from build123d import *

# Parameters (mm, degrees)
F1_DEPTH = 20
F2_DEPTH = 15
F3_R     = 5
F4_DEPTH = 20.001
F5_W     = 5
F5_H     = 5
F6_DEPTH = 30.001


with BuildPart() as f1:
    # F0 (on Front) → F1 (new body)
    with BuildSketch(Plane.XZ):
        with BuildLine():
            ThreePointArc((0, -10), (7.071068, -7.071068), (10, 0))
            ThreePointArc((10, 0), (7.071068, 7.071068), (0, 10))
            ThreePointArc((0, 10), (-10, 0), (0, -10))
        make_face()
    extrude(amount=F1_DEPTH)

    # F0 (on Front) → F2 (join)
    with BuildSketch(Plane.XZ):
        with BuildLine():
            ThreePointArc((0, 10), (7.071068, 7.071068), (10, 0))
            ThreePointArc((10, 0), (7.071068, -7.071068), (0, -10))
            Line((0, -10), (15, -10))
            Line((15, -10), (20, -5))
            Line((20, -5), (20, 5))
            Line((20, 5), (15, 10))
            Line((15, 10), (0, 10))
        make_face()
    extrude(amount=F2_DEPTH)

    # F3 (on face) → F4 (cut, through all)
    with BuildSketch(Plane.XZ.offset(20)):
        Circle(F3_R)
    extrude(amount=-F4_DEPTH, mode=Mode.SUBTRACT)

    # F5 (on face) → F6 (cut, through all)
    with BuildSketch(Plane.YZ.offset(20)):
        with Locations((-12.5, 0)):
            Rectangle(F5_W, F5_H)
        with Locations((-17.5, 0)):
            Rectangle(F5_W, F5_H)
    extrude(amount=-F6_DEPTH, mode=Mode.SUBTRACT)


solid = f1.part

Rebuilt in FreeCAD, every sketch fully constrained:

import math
import FreeCAD as App
import Part
import Sketcher

V = App.Vector

doc = App.newDocument("Part")
body = doc.addObject("PartDesign::Body", "Body")

sketch1 = doc.addObject("Sketcher::SketchObject", "Sketch")
body.addObject(sketch1)
sketch1.AttachmentSupport = (doc.XZ_Plane, [""])
sketch1.MapMode = "FlatFace"
sketch1.addGeometry([
    Part.ArcOfCircle(Part.Circle(V(0.000001, -0.000001, 0), V(0, 0, 1), 9.999999), math.radians(-90.000004), math.radians(0.000004)),
    Part.ArcOfCircle(Part.Circle(V(0.000001, 0.000001, 0), V(0, 0, 1), 9.999999), math.radians(-0.000004), math.radians(90.000004)),
    Part.ArcOfCircle(Part.Circle(V(0, 0, 0), V(0, 0, 1), 10), math.radians(90), math.radians(270)),
], False)
sketch1.addConstraint([
    Sketcher.Constraint("Tangent", 0, 2, 1, 1),
    Sketcher.Constraint("Tangent", 1, 2, 2, 1),
    Sketcher.Constraint("Tangent", 2, 2, 0, 1),
    Sketcher.Constraint("Coincident", 0, 3, -1, 1),
    Sketcher.Constraint("PointOnObject", 0, 2, -1),
    Sketcher.Constraint("PointOnObject", 1, 2, -2),
    Sketcher.Constraint("PointOnObject", 2, 2, -2),
    Sketcher.Constraint("Radius", 0, 9.999999),
])
pad1 = doc.addObject("PartDesign::Pad", "Pad")
body.addObject(pad1)
pad1.Profile = sketch1
pad1.Length = 20

sketch2 = doc.addObject("Sketcher::SketchObject", "Sketch001")
body.addObject(sketch2)
sketch2.AttachmentSupport = (doc.XZ_Plane, [""])
sketch2.MapMode = "FlatFace"
sketch2.addGeometry([
    Part.ArcOfCircle(Part.Circle(V(0.000001, 0.000001, 0), V(0, 0, 1), 9.999999), math.radians(-0.000004), math.radians(90.000004)),
    Part.ArcOfCircle(Part.Circle(V(0.000001, -0.000001, 0), V(0, 0, 1), 9.999999), math.radians(-90.000004), math.radians(0.000004)),
    Part.LineSegment(V(0, -10, 0), V(15, -10, 0)),
    Part.LineSegment(V(15, -10, 0), V(20, -5, 0)),
    Part.LineSegment(V(20, -5, 0), V(20, 5, 0)),
    Part.LineSegment(V(20, 5, 0), V(15, 10, 0)),
    Part.LineSegment(V(15, 10, 0), V(0, 10, 0)),
], False)
sketch2.addConstraint([
    Sketcher.Constraint("Tangent", 0, 1, 1, 2),
    Sketcher.Constraint("Tangent", 1, 1, 2, 1),
    Sketcher.Constraint("Coincident", 2, 2, 3, 1),
    Sketcher.Constraint("Coincident", 3, 2, 4, 1),
    Sketcher.Constraint("Coincident", 4, 2, 5, 1),
    Sketcher.Constraint("Coincident", 5, 2, 6, 1),
    Sketcher.Constraint("Tangent", 6, 2, 0, 2),
    Sketcher.Constraint("Horizontal", 2),
    Sketcher.Constraint("Vertical", 4),
    Sketcher.Constraint("Horizontal", 6),
    Sketcher.Constraint("Coincident", 0, 3, -1, 1),
    Sketcher.Constraint("Equal", 0, 1),
    Sketcher.Constraint("PointOnObject", 0, 1, -1),
    Sketcher.Constraint("Perpendicular", 3, 5),
    Sketcher.Constraint("Vertical", 2, 2, 5, 2),
    Sketcher.Constraint("Equal", 3, 5),
    Sketcher.Constraint("Radius", 0, 9.999999),
    Sketcher.Constraint("DistanceX", 2, 1, 2, 2, 15.0),
    Sketcher.Constraint("DistanceY", 4, 1, 4, 2, 10.0),
])
pad2 = doc.addObject("PartDesign::Pad", "Pad001")
body.addObject(pad2)
pad2.Profile = sketch2
pad2.Length = 15

sketch3 = doc.addObject("Sketcher::SketchObject", "Sketch002")
body.addObject(sketch3)
sketch3.AttachmentSupport = (doc.XZ_Plane, [""])
sketch3.MapMode = "FlatFace"
sketch3.AttachmentOffset = App.Placement(V(0, 0, 20), App.Rotation())
sketch3.addGeometry(Part.Circle(V(0, 0, 0), V(0, 0, 1), 5), False)
sketch3.addConstraint([
    Sketcher.Constraint("Coincident", 0, 3, -1, 1),
    Sketcher.Constraint("Diameter", 0, 10.0),
])
pocket1 = doc.addObject("PartDesign::Pocket", "Pocket")
body.addObject(pocket1)
pocket1.Profile = sketch3
pocket1.Type = "ThroughAll"

sketch4 = doc.addObject("Sketcher::SketchObject", "Sketch003")
body.addObject(sketch4)
sketch4.AttachmentSupport = (doc.YZ_Plane, [""])
sketch4.MapMode = "FlatFace"
sketch4.AttachmentOffset = App.Placement(V(0, 0, 20), App.Rotation())
sketch4.addGeometry([
    Part.LineSegment(V(-10, -2.5, 0), V(-10, 2.5, 0)),
    Part.LineSegment(V(-10, 2.5, 0), V(-20, 2.5, 0)),
    Part.LineSegment(V(-20, 2.5, 0), V(-20, -2.5, 0)),
    Part.LineSegment(V(-20, -2.5, 0), V(-10, -2.5, 0)),
], False)
sketch4.addConstraint([
    Sketcher.Constraint("Coincident", 0, 2, 1, 1),
    Sketcher.Constraint("Coincident", 1, 2, 2, 1),
    Sketcher.Constraint("Coincident", 2, 2, 3, 1),
    Sketcher.Constraint("Coincident", 3, 2, 0, 1),
    Sketcher.Constraint("Vertical", 0),
    Sketcher.Constraint("Horizontal", 1),
    Sketcher.Constraint("Vertical", 2),
    Sketcher.Constraint("Horizontal", 3),
    Sketcher.Constraint("DistanceX", 1, 2, 1, 1, 10.0),
    Sketcher.Constraint("DistanceY", 0, 1, 0, 2, 5.0),
    Sketcher.Constraint("DistanceX", 0, 2, -1, 1, 10.0),
    Sketcher.Constraint("DistanceY", -1, 1, 0, 2, 2.5),
])
pocket2 = doc.addObject("PartDesign::Pocket", "Pocket001")
body.addObject(pocket2)
pocket2.Profile = sketch4
pocket2.Type = "ThroughAll"

doc.recompute()
